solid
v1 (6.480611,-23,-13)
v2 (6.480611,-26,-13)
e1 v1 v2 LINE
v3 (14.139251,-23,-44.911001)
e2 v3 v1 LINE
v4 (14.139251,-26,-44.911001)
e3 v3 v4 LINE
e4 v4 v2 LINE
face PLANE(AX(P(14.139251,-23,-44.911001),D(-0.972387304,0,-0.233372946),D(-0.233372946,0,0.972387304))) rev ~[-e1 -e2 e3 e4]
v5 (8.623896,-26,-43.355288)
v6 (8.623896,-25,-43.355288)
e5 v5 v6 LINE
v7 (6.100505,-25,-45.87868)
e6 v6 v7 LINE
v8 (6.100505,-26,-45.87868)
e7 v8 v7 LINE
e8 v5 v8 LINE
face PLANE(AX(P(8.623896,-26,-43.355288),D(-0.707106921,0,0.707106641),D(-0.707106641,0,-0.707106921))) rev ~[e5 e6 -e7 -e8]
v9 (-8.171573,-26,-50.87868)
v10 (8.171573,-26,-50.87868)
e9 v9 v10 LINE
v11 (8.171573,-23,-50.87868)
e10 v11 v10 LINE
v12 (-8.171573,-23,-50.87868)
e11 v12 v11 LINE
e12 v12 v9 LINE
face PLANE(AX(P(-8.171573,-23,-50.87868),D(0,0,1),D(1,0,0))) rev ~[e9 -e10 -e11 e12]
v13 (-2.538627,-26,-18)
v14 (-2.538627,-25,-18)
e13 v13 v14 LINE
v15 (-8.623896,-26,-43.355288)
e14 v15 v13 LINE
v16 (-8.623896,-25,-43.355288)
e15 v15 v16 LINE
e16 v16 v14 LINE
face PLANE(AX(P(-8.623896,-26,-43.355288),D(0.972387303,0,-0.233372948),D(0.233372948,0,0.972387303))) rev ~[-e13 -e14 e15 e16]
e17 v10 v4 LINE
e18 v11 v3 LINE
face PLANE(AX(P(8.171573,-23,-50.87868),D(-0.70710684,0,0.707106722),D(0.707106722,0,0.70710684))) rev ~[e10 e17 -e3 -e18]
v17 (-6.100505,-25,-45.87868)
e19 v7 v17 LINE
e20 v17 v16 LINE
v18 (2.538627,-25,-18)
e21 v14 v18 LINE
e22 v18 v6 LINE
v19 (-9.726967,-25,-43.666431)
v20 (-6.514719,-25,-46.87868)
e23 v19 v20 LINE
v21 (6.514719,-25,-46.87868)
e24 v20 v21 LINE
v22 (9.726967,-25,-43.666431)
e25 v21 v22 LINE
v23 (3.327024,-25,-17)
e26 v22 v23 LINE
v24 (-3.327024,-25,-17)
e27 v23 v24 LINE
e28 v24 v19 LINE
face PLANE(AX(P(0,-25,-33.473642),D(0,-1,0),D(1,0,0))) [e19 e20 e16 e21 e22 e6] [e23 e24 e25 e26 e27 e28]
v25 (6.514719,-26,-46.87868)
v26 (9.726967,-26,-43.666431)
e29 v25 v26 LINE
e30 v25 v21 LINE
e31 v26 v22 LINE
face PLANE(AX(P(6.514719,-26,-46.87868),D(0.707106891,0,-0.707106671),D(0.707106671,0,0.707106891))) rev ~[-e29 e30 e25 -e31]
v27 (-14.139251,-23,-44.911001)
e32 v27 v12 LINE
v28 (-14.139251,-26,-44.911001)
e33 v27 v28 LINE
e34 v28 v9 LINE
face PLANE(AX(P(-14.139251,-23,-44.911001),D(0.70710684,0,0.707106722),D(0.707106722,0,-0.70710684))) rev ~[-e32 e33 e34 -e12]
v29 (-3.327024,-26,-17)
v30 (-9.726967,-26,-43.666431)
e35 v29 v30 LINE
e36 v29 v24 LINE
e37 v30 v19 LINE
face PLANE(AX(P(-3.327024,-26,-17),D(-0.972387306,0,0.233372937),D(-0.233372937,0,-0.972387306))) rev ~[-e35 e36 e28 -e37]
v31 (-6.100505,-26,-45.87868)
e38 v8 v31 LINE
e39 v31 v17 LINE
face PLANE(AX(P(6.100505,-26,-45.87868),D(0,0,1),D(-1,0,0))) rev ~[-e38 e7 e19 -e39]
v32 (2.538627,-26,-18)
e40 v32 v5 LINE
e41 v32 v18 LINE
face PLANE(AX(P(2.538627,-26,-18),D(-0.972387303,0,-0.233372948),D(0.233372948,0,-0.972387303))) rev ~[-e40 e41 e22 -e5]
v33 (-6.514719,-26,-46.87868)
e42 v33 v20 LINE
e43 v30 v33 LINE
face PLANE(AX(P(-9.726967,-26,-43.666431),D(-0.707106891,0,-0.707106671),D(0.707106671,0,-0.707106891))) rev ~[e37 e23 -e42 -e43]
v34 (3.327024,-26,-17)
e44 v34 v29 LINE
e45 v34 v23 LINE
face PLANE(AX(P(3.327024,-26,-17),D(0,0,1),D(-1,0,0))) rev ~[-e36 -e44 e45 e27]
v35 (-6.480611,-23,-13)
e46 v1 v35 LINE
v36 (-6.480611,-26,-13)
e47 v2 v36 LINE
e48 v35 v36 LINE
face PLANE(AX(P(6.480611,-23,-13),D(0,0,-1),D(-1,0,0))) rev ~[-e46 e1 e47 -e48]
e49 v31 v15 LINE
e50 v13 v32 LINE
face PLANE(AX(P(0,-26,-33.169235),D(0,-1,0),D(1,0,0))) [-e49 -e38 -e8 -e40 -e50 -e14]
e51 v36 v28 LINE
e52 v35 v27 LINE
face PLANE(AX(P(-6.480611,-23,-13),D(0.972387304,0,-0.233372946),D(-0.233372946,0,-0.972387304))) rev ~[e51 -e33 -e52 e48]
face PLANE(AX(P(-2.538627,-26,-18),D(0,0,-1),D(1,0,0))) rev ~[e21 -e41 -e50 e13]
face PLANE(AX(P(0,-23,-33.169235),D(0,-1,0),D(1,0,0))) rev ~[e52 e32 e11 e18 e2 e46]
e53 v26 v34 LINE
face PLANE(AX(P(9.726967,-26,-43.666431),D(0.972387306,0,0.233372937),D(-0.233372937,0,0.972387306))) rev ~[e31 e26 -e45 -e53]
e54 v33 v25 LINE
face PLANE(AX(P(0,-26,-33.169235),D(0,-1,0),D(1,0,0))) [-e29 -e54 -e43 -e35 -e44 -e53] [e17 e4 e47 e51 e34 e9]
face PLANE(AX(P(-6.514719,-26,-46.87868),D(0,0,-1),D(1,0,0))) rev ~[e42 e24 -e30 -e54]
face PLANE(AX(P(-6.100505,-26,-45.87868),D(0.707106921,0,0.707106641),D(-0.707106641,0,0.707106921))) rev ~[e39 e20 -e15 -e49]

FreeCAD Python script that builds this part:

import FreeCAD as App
import Part
import Sketcher
from FreeCAD import Vector

doc = App.newDocument("Part")
params = doc.addObject("Spreadsheet::Sheet", "Params")
for row, (alias, value) in enumerate([
    ("pad1_length", "3 mm"),
    ("pocket1_length", "1 mm"),
], start=1):
    params.set(f"A{row}", alias)
    params.set(f"B{row}", "=" + value)
    params.setAlias(f"B{row}", alias)

body = doc.addObject("PartDesign::Body", "Body")

sketch1 = body.newObject("Sketcher::SketchObject", "Sketch")
sketch1.AttachmentSupport = (doc.getObject("XZ_Plane"), [""])
sketch1.MapMode = "FlatFace"
sketch1.AttachmentOffset = App.Placement(Vector(0, 0, 23), App.Rotation())
sketch1.addGeometry(Part.LineSegment(Vector(-6.480611, -13, 0), Vector(-14.139251, -44.911001, 0)), False)
sketch1.addGeometry(Part.LineSegment(Vector(-14.139251, -44.911001, 0), Vector(-8.171573, -50.87868, 0)), False)
sketch1.addGeometry(Part.LineSegment(Vector(-8.171573, -50.87868, 0), Vector(8.171573, -50.87868, 0)), False)
sketch1.addGeometry(Part.LineSegment(Vector(8.171573, -50.87868, 0), Vector(14.139251, -44.911001, 0)), False)
sketch1.addGeometry(Part.LineSegment(Vector(14.139251, -44.911001, 0), Vector(6.480611, -13, 0)), False)
sketch1.addGeometry(Part.LineSegment(Vector(6.480611, -13, 0), Vector(-6.480611, -13, 0)), False)
sketch1.addConstraint(Sketcher.Constraint("Coincident", 0, 2, 1, 1))
sketch1.addConstraint(Sketcher.Constraint("Coincident", 1, 2, 2, 1))
sketch1.addConstraint(Sketcher.Constraint("Coincident", 2, 2, 3, 1))
sketch1.addConstraint(Sketcher.Constraint("Coincident", 3, 2, 4, 1))
sketch1.addConstraint(Sketcher.Constraint("Coincident", 4, 2, 5, 1))
sketch1.addConstraint(Sketcher.Constraint("Coincident", 5, 2, 0, 1))
sketch1.addConstraint(Sketcher.Constraint("Horizontal", 2))
sketch1.addConstraint(Sketcher.Constraint("Horizontal", 5))
sketch1.addConstraint(Sketcher.Constraint("Symmetric", 0, 2, 3, 2, -2))
sketch1.addConstraint(Sketcher.Constraint("Perpendicular", 1, 3))
sketch1.addConstraint(Sketcher.Constraint("Equal", 1, 3))
sketch1.addConstraint(Sketcher.Constraint("Equal", 0, 4))
sketch1.addConstraint(Sketcher.Constraint("DistanceY", 4, 2, -1, 1, 13.0))
sketch1.addConstraint(Sketcher.Constraint("DistanceY", 0, 2, -1, 1, 44.911001))
sketch1.addConstraint(Sketcher.Constraint("DistanceX", 5, 2, 5, 1, 12.961222))
sketch1.addConstraint(Sketcher.Constraint("DistanceX", 0, 2, 3, 2, 28.278502))
sketch1.addConstraint(Sketcher.Constraint("Distance", 1, 8.439572))
pad1 = body.newObject("PartDesign::Pad", "Pad")
pad1.Profile = sketch1
pad1.setExpression("Length", "Params.pad1_length")

sketch2 = body.newObject("Sketcher::SketchObject", "Sketch001")
sketch2.AttachmentSupport = (doc.getObject("XZ_Plane"), [""])
sketch2.MapMode = "FlatFace"
sketch2.AttachmentOffset = App.Placement(Vector(0, 0, 26), App.Rotation())
sketch2.addGeometry(Part.LineSegment(Vector(9.726967, -43.666431, 0), Vector(3.327024, -17, 0)), False)
sketch2.addGeometry(Part.LineSegment(Vector(3.327024, -17, 0), Vector(-3.327024, -17, 0)), False)
sketch2.addGeometry(Part.LineSegment(Vector(-3.327024, -17, 0), Vector(-9.726967, -43.666431, 0)), False)
sketch2.addGeometry(Part.LineSegment(Vector(-9.726967, -43.666431, 0), Vector(-6.514719, -46.87868, 0)), False)
sketch2.addGeometry(Part.LineSegment(Vector(-6.514719, -46.87868, 0), Vector(6.514719, -46.87868, 0)), False)
sketch2.addGeometry(Part.LineSegment(Vector(6.514719, -46.87868, 0), Vector(9.726967, -43.666431, 0)), False)
sketch2.addGeometry(Part.LineSegment(Vector(-8.623896, -43.355288, 0), Vector(-2.538627, -18, 0)), False)
sketch2.addGeometry(Part.LineSegment(Vector(-2.538627, -18, 0), Vector(2.538627, -18, 0)), False)
sketch2.addGeometry(Part.LineSegment(Vector(2.538627, -18, 0), Vector(8.623896, -43.355288, 0)), False)
sketch2.addGeometry(Part.LineSegment(Vector(8.623896, -43.355288, 0), Vector(6.100505, -45.87868, 0)), False)
sketch2.addGeometry(Part.LineSegment(Vector(6.100505, -45.87868, 0), Vector(-6.100505, -45.87868, 0)), False)
sketch2.addGeometry(Part.LineSegment(Vector(-6.100505, -45.87868, 0), Vector(-8.623896, -43.355288, 0)), False)
sketch2.addConstraint(Sketcher.Constraint("Coincident", 0, 2, 1, 1))
sketch2.addConstraint(Sketcher.Constraint("Coincident", 1, 2, 2, 1))
sketch2.addConstraint(Sketcher.Constraint("Coincident", 2, 2, 3, 1))
sketch2.addConstraint(Sketcher.Constraint("Coincident", 3, 2, 4, 1))
sketch2.addConstraint(Sketcher.Constraint("Coincident", 4, 2, 5, 1))
sketch2.addConstraint(Sketcher.Constraint("Coincident", 5, 2, 0, 1))
sketch2.addConstraint(Sketcher.Constraint("Coincident", 6, 2, 7, 1))
sketch2.addConstraint(Sketcher.Constraint("Coincident", 7, 2, 8, 1))
sketch2.addConstraint(Sketcher.Constraint("Coincident", 8, 2, 9, 1))
sketch2.addConstraint(Sketcher.Constraint("Coincident", 9, 2, 10, 1))
sketch2.addConstraint(Sketcher.Constraint("Coincident", 10, 2, 11, 1))
sketch2.addConstraint(Sketcher.Constraint("Coincident", 11, 2, 6, 1))
sketch2.addConstraint(Sketcher.Constraint("Horizontal", 1))
sketch2.addConstraint(Sketcher.Constraint("Horizontal", 4))
sketch2.addConstraint(Sketcher.Constraint("Horizontal", 7))
sketch2.addConstraint(Sketcher.Constraint("Horizontal", 10))
sketch2.addConstraint(Sketcher.Constraint("Symmetric", 2, 2, 5, 2, -2))
sketch2.addConstraint(Sketcher.Constraint("Symmetric", 8, 2, 11, 2, -2))
sketch2.addConstraint(Sketcher.Constraint("Perpendicular", 3, 5))
sketch2.addConstraint(Sketcher.Constraint("Parallel", 2, 6))
sketch2.addConstraint(Sketcher.Constraint("Parallel", 0, 8))
sketch2.addConstraint(Sketcher.Constraint("Parallel", 5, 9))
sketch2.addConstraint(Sketcher.Constraint("Perpendicular", 9, 11))
sketch2.addConstraint(Sketcher.Constraint("Equal", 0, 2))
sketch2.addConstraint(Sketcher.Constraint("Equal", 3, 5))
sketch2.addConstraint(Sketcher.Constraint("DistanceY", 0, 2, -1, 1, 17.0))
sketch2.addConstraint(Sketcher.Constraint("DistanceY", 6, 2, -1, 1, 18.0))
sketch2.addConstraint(Sketcher.Constraint("DistanceY", 4, 2, 9, 2, 1.0))
sketch2.addConstraint(Sketcher.Constraint("DistanceX", 1, 2, 1, 1, 6.654048))
sketch2.addConstraint(Sketcher.Constraint("DistanceX", 4, 1, 4, 2, 13.029438))
sketch2.addConstraint(Sketcher.Constraint("DistanceX", 10, 2, 10, 1, 12.20101))
sketch2.addConstraint(Sketcher.Constraint("DistanceX", 10, 2, 8, 2, 14.724401))
sketch2.addConstraint(Sketcher.Constraint("DistanceX", 7, 1, 7, 2, 5.077254))
sketch2.addConstraint(Sketcher.Constraint("DistanceY", 2, 2, -1, 1, 43.666431))
pocket1 = body.newObject("PartDesign::Pocket", "Pocket")
pocket1.Profile = sketch2
pocket1.setExpression("Length", "Params.pocket1_length")

doc.recompute()
